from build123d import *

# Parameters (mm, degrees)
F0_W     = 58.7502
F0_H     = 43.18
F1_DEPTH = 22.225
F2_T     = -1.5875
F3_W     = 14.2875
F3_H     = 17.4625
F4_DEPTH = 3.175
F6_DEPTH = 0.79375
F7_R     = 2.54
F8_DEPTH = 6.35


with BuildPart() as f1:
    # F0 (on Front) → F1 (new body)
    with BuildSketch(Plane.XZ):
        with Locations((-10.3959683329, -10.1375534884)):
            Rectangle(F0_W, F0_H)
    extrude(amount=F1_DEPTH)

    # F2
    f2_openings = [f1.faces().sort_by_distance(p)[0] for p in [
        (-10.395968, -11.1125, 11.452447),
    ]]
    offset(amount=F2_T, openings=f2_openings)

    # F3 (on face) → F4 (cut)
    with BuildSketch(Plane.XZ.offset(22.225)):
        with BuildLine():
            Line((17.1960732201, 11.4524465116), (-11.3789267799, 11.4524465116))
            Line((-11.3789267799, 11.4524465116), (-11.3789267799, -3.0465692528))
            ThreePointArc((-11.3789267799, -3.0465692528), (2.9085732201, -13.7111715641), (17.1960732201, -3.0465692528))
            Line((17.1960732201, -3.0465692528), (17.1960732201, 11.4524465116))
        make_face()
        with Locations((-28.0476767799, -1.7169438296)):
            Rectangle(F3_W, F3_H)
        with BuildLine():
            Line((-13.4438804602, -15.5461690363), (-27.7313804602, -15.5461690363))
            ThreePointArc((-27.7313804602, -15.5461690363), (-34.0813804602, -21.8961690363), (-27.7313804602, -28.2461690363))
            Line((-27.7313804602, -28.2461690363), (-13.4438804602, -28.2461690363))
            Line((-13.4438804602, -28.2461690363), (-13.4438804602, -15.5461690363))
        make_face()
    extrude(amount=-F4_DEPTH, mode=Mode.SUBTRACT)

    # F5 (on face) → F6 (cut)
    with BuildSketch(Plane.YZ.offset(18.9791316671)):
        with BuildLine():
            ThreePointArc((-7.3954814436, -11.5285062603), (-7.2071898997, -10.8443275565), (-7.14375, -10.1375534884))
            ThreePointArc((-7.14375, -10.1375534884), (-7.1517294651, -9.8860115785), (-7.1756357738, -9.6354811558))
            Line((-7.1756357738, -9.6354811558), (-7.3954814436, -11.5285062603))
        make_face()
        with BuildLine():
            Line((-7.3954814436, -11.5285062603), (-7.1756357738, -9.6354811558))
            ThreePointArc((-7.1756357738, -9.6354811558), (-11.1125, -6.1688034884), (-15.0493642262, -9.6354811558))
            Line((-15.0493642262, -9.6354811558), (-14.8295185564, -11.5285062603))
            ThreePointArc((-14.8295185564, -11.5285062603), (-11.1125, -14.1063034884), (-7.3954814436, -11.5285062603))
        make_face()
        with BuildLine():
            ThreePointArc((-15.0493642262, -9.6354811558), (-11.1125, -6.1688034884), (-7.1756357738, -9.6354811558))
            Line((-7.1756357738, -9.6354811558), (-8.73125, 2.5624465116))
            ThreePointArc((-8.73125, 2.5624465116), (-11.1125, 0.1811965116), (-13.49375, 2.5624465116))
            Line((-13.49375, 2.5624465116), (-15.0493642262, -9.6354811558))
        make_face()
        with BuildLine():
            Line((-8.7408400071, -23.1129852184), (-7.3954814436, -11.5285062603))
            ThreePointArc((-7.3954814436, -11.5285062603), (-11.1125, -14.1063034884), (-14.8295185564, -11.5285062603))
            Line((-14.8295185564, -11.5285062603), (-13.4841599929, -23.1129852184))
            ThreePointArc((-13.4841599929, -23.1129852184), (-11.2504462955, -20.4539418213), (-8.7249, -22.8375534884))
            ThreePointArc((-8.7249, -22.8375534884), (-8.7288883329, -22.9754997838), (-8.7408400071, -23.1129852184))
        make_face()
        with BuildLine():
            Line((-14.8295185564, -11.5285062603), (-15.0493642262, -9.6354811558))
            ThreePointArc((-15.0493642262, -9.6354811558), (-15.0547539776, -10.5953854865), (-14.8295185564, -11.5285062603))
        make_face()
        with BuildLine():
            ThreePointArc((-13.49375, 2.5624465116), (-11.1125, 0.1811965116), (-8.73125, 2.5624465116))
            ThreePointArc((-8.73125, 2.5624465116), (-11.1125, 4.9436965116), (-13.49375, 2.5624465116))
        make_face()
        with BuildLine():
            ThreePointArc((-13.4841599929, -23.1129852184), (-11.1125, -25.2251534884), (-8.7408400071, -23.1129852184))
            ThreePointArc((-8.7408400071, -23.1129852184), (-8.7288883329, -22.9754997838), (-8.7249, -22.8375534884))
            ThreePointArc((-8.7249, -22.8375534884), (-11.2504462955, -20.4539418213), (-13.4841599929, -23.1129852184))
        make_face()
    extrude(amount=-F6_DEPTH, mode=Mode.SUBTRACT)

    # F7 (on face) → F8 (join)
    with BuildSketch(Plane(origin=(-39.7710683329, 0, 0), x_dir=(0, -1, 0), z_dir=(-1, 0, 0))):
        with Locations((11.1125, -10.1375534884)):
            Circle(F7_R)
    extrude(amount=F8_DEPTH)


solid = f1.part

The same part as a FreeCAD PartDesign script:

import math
import FreeCAD as App
import Part
import Sketcher

V = App.Vector
Q = App.Units.Quantity


def faces_at(feature, points):
    """Names of the faces that lie closest to the given points."""
    faces = feature.Shape.Faces
    near = lambda p: min(range(len(faces)), key=lambda i: faces[i].distToShape(Part.Vertex(*p))[0])
    return sorted({f"Face{near(p) + 1}" for p in points})


def add_polygon(sketch, points):
    """Adds a closed chain of lines whose ends are joined by coincident constraints."""
    first, n = sketch.GeometryCount, len(points)
    for a, b in zip(points, points[1:] + points[:1]):
        sketch.addGeometry(Part.LineSegment(App.Vector(*a, 0), App.Vector(*b, 0)), False)
    for i in range(n):
        sketch.addConstraint(Sketcher.Constraint("Coincident", first + i, 2, first + (i + 1) % n, 1))

doc = App.newDocument("Part")
body = doc.addObject("PartDesign::Body", "Body")

# Sketch on XZ plane
sketch1 = body.newObject("Sketcher::SketchObject", "Sketch")
sketch1.AttachmentSupport = (doc.getObject("XZ_Plane"), [""])
sketch1.MapMode = "FlatFace"
add_polygon(sketch1, [(-40, 11), (-40, -32), (19, -32), (19, 11)])  # lines 0-3
sketch1.addConstraint([
    Sketcher.Constraint("Vertical", 0),
    Sketcher.Constraint("Horizontal", 1),
    Sketcher.Constraint("Vertical", 2),
    Sketcher.Constraint("Horizontal", 3),
    Sketcher.Constraint("DistanceY", 0, 2, 0, 1, Q("1.7 in")),
    Sketcher.Constraint("DistanceX", 1, 1, 1, 2, Q("2.313 in")),
    Sketcher.Constraint("DistanceX", 0, 2, -1, 1, Q("39.771068 mm")),
    Sketcher.Constraint("DistanceY", 0, 2, -1, 1, Q("31.727553 mm")),
])
pad1 = body.newObject("PartDesign::Pad", "Pad")
pad1.Profile = sketch1
pad1.Length = Q("0.875 in")
doc.recompute()

thickness = body.newObject("PartDesign::Thickness", "Thickness")
thickness.Base = (pad1, faces_at(pad1, [(-10.396, -11.113, 11.452)]))
thickness.Value = Q("0.0625 in")
thickness.Reversed = True
thickness.Join = "Arc"

# Sketch on XZ plane
sketch2 = body.newObject("Sketcher::SketchObject", "Sketch001")
sketch2.AttachmentSupport = (doc.getObject("XZ_Plane"), [""])
sketch2.MapMode = "FlatFace"
sketch2.AttachmentOffset = App.Placement(V(0, 0, 0.875 * 25.4), App.Rotation())
sketch2.addGeometry(Part.LineSegment(V(17, 11, 0), V(-11, 11, 0)), False)  # 0
sketch2.addGeometry(Part.LineSegment(V(-11, 11, 0), V(-11, -3, 0)), False)  # 1
sketch2.addGeometry(Part.ArcOfCircle(Part.Circle(V(3, 1, 0), V(0, 0, 1), 15), math.radians(-163), math.radians(-17)), False)  # 2
sketch2.addGeometry(Part.LineSegment(V(17, -3, 0), V(17, 11, 0)), False)  # 3
add_polygon(sketch2, [(-35, 7), (-35, -10), (-21, -10), (-21, 7)])  # lines 4-7
sketch2.addGeometry(Part.LineSegment(V(-13, -16, 0), V(-28, -16, 0)), False)  # 8
sketch2.addGeometry(Part.ArcOfCircle(Part.Circle(V(-28, -22, 0), V(0, 0, 1), 6), math.radians(90), math.radians(270)), False)  # 9
sketch2.addGeometry(Part.LineSegment(V(-28, -28, 0), V(-13, -28, 0)), False)  # 10
sketch2.addGeometry(Part.LineSegment(V(-13, -28, 0), V(-13, -16, 0)), False)  # 11
sketch2.addConstraint([
    Sketcher.Constraint("Coincident", 0, 2, 1, 1),
    Sketcher.Constraint("Coincident", 1, 2, 2, 1),
    Sketcher.Constraint("Coincident", 2, 2, 3, 1),
    Sketcher.Constraint("Coincident", 3, 2, 0, 1),
    Sketcher.Constraint("Tangent", 8, 2, 9, 1),
    Sketcher.Constraint("Tangent", 9, 2, 10, 1),
    Sketcher.Constraint("Coincident", 10, 2, 11, 1),
    Sketcher.Constraint("Coincident", 11, 2, 8, 1),
    Sketcher.Constraint("Horizontal", 0),
    Sketcher.Constraint("Vertical", 1),
    Sketcher.Constraint("Vertical", 3),
    Sketcher.Constraint("Vertical", 4),
    Sketcher.Constraint("Horizontal", 5),
    Sketcher.Constraint("Vertical", 6),
    Sketcher.Constraint("Horizontal", 7),
    Sketcher.Constraint("Horizontal", 8),
    Sketcher.Constraint("Horizontal", 10),
    Sketcher.Constraint("Vertical", 11),
    Sketcher.Constraint("Horizontal", 1, 2, 2, 2),
    Sketcher.Constraint("Equal", 7, 8),
    Sketcher.Constraint("Radius", 9, Q("0.25 in")),
    Sketcher.Constraint("DistanceX", 4, 2, 2, 3, Q("1.5 in")),
    Sketcher.Constraint("DistanceX", 0, 2, 0, 1, Q("1.125 in")),
    Sketcher.Constraint("DistanceX", 5, 1, 5, 2, Q("0.5625 in")),
    Sketcher.Constraint("DistanceY", 4, 2, 4, 1, Q("0.6875 in")),
    Sketcher.Constraint("Radius", 2, Q("14.902872 mm")),
    Sketcher.Constraint("DistanceY", -1, 1, 2, 3, Q("1.1917 mm")),
    Sketcher.Constraint("DistanceY", 9, 3, 1, 2, Q("18.8496 mm")),
    Sketcher.Constraint("DistanceY", 1, 2, 1, 1, Q("14.499016 mm")),
    Sketcher.Constraint("DistanceX", 9, 3, -1, 1, Q("27.73138 mm")),
    Sketcher.Constraint("DistanceY", 4, 2, 0, 2, Q("21.90064 mm")),
    Sketcher.Constraint("DistanceX", -1, 1, 2, 3, Q("2.908573 mm")),
])
pocket1 = body.newObject("PartDesign::Pocket", "Pocket")
pocket1.Profile = sketch2
pocket1.Length = Q("0.125 in")

# Sketch on YZ plane
sketch3 = body.newObject("Sketcher::SketchObject", "Sketch002")
sketch3.AttachmentSupport = (doc.getObject("YZ_Plane"), [""])
sketch3.MapMode = "FlatFace"
sketch3.AttachmentOffset = App.Placement(V(0, 0, 18.979132), App.Rotation())
sketch3.addGeometry([
    Part.ArcOfCircle(Part.Circle(V(-11.1, -10.1, 0), V(0, 0, 1), 4), math.radians(-21), math.radians(0)),  # 0
    Part.ArcOfCircle(Part.Circle(V(-11.1, -10.1, 0), V(0, 0, 1), 4), math.radians(0), math.radians(7.27)),  # 1
    Part.LineSegment(V(-7.2, -9.6, 0), V(-8.7, 2.6, 0)),  # 2
    Part.ArcOfCircle(Part.Circle(V(-11.1, 2.6, 0), V(0, 0, 1), 2.4), math.radians(0), math.radians(180)),  # 3
    Part.LineSegment(V(-13.5, 2.6, 0), V(-15, -9.6, 0)),  # 4
    Part.ArcOfCircle(Part.Circle(V(-11.1, -10.1, 0), V(0, 0, 1), 4), math.radians(173), math.radians(201)),  # 5
    Part.LineSegment(V(-14.8, -11.5, 0), V(-13.5, -23.1, 0)),  # 6
    Part.ArcOfCircle(Part.Circle(V(-11.1, -22.8, 0), V(0, 0, 1), 2.4), math.radians(-173), math.radians(-7)),  # 7
    Part.LineSegment(V(-8.7, -23.1, 0), V(-7.4, -11.5, 0)),  # 8
], False)
sketch3.addConstraint([
    Sketcher.Constraint("Tangent", 0, 2, 1, 1),
    Sketcher.Constraint("Tangent", 1, 2, 2, 1),
    Sketcher.Constraint("Coincident", 2, 2, 3, 1),
    Sketcher.Constraint("Coincident", 3, 2, 4, 1),
    Sketcher.Constraint("Tangent", 4, 2, 5, 1),
    Sketcher.Constraint("Coincident", 5, 2, 6, 1),
    Sketcher.Constraint("Tangent", 6, 2, 7, 1),
    Sketcher.Constraint("Tangent", 7, 2, 8, 1),
    Sketcher.Constraint("Coincident", 8, 2, 0, 1),
    Sketcher.Constraint("Coincident", 5, 3, 0, 3),
    Sketcher.Constraint("Equal", 0, 1),
    Sketcher.Constraint("Equal", 1, 5),
    Sketcher.Constraint("Horizontal", 5, 3, 0, 2),
    Sketcher.Constraint("Horizontal", 3, 3, 2, 2),
    Sketcher.Constraint("Horizontal", 2, 2, 3, 2),
    Sketcher.Constraint("Horizontal", 1, 2, 4, 2),
    Sketcher.Constraint("Horizontal", 6, 2, 7, 2),
    Sketcher.Constraint("Horizontal", 5, 2, 8, 2),
    Sketcher.Constraint("Radius", 0, Q("0.15625 in")),
    Sketcher.Constraint("Radius", 3, Q("0.09375 in")),
    Sketcher.Constraint("Radius", 7, Q("0.094 in")),
    Sketcher.Constraint("DistanceY", 7, 3, 3, 3, Q("1 in")),
    Sketcher.Constraint("DistanceY", 1, 3, 3, 3, Q("0.5 in")),
    Sketcher.Constraint("DistanceX", 0, 3, -1, 1, Q("0.4375 in")),
    Sketcher.Constraint("Distance", 6, Q("11.662339 mm")),
    Sketcher.Constraint("DistanceY", 1, 2, -1, 1, Q("9.635481 mm")),
])
pocket2 = body.newObject("PartDesign::Pocket", "Pocket001")
pocket2.Profile = sketch3
pocket2.Length = Q("0.03125 in")

# Sketch on YZ plane
sketch4 = body.newObject("Sketcher::SketchObject", "Sketch003")
sketch4.AttachmentSupport = (doc.getObject("YZ_Plane"), [""])
sketch4.MapMode = "FlatFace"
sketch4.AttachmentOffset = App.Placement(V(0, 0, -39.771068), App.Rotation())
sketch4.addGeometry(Part.Circle(V(-11.1, -10.1, 0), V(0, 0, 1), 2.5), False)
sketch4.addConstraint([
    Sketcher.Constraint("Diameter", 0, Q("0.2 in")),
    Sketcher.Constraint("DistanceX", 0, 3, -1, 1, Q("0.4375 in")),
    Sketcher.Constraint("DistanceY", 0, 3, -1, 1, Q("10.137553 mm")),
])
pad2 = body.newObject("PartDesign::Pad", "Pad001")
pad2.Profile = sketch4
pad2.Length = Q("0.25 in")
pad2.Reversed = True

doc.recompute()
